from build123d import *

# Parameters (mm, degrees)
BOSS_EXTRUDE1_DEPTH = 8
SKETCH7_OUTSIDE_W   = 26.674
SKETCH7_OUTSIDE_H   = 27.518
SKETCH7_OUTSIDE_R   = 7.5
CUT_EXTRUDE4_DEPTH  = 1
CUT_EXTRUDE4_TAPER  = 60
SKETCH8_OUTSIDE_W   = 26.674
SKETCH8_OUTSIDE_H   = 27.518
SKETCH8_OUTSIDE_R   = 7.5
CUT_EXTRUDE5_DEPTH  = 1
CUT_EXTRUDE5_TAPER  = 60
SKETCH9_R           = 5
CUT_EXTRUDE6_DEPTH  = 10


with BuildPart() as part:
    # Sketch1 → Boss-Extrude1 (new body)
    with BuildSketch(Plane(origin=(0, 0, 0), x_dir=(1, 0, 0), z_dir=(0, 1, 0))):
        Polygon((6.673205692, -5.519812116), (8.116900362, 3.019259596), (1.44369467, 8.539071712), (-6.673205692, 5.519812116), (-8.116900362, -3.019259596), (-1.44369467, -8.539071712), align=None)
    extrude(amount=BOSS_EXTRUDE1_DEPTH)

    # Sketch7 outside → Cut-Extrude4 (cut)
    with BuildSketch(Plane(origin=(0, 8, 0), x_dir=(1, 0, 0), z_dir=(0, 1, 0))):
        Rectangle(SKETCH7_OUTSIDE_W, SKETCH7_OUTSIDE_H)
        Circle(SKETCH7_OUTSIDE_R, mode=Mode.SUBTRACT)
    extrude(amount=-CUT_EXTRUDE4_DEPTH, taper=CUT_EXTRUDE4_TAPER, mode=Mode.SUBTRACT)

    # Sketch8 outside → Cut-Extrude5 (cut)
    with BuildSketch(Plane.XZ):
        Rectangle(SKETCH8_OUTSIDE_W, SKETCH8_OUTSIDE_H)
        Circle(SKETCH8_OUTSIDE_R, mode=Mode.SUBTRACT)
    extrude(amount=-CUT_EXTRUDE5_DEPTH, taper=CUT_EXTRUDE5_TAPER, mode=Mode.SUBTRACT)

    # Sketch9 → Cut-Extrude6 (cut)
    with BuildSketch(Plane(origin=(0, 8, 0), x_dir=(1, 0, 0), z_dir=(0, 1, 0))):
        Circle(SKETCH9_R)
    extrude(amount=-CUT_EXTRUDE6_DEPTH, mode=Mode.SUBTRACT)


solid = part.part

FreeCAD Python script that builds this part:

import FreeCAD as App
import Part
import Sketcher
from FreeCAD import Vector


def add_polygon(sketch, points):
    """Adds a closed chain of lines whose ends are joined by coincident constraints."""
    first, n = sketch.GeometryCount, len(points)
    for a, b in zip(points, points[1:] + points[:1]):
        sketch.addGeometry(Part.LineSegment(App.Vector(*a, 0), App.Vector(*b, 0)), False)
    for i in range(n):
        sketch.addConstraint(Sketcher.Constraint("Coincident", first + i, 2, first + (i + 1) % n, 1))

doc = App.newDocument("Part")
body = doc.addObject("PartDesign::Body", "Body")

# Sketch on XZ plane
sketch1 = body.newObject("Sketcher::SketchObject", "Sketch")
sketch1.AttachmentSupport = (doc.getObject("XZ_Plane"), [""])
sketch1.MapMode = "FlatFace"
add_polygon(sketch1, [(6.673206, 5.519812), (8.1169, -3.01926), (1.443695, -8.539072), (-6.673206, -5.519812), (-8.1169, 3.01926), (-1.443695, 8.539072)])  # lines 0-5
sketch1.addConstraint(Sketcher.Constraint("Symmetric", 0, 2, 3, 2, -1, 1))
sketch1.addConstraint(Sketcher.Constraint("Symmetric", 1, 2, 4, 2, -1, 1))
sketch1.addConstraint(Sketcher.Constraint("Symmetric", 2, 2, 5, 2, -1, 1))
sketch1.addConstraint(Sketcher.Constraint("Equal", 0, 1))
sketch1.addConstraint(Sketcher.Constraint("Equal", 1, 2))
sketch1.addConstraint(Sketcher.Constraint("DistanceX", -1, 1, 0, 2, 8.1169))
sketch1.addConstraint(Sketcher.Constraint("DistanceX", 2, 2, 1, 2, 8.1169))
sketch1.addConstraint(Sketcher.Constraint("DistanceY", 0, 2, -1, 1, 3.01926))
sketch1.addConstraint(Sketcher.Constraint("DistanceY", 1, 2, -1, 1, 8.539072))
pad1 = body.newObject("PartDesign::Pad", "Pad")
pad1.Profile = sketch1
pad1.Length = 8
pad1.Reversed = True

# Sketch on XZ plane
sketch2 = body.newObject("Sketcher::SketchObject", "Sketch001")
sketch2.AttachmentSupport = (doc.getObject("XZ_Plane"), [""])
sketch2.MapMode = "FlatFace"
sketch2.AttachmentOffset = App.Placement(Vector(0, 0, -8), App.Rotation())
add_polygon(sketch2, [(-13.337, -13.759), (-13.337, 13.759), (13.337, 13.759), (13.337, -13.759)])  # lines 0-3
sketch2.addGeometry(Part.Circle(Vector(0, 0, 0), Vector(0, 0, 1), 7.5), False)  # 4
sketch2.addConstraint(Sketcher.Constraint("Vertical", 0))
sketch2.addConstraint(Sketcher.Constraint("Horizontal", 1))
sketch2.addConstraint(Sketcher.Constraint("Vertical", 2))
sketch2.addConstraint(Sketcher.Constraint("Horizontal", 3))
sketch2.addConstraint(Sketcher.Constraint("Coincident", 4, 3, -1, 1))
sketch2.addConstraint(Sketcher.Constraint("Symmetric", 0, 2, 2, 2, -1, 1))
sketch2.addConstraint(Sketcher.Constraint("Diameter", 4, 15.0))
sketch2.addConstraint(Sketcher.Constraint("DistanceX", 1, 1, 1, 2, 26.674))
sketch2.addConstraint(Sketcher.Constraint("DistanceY", 0, 1, 0, 2, 27.518))
pocket1 = body.newObject("PartDesign::Pocket", "Pocket")
pocket1.Profile = sketch2
pocket1.Length = 1
pocket1.Reversed = True
pocket1.TaperAngle = 60

# Sketch on XZ plane
sketch3 = body.newObject("Sketcher::SketchObject", "Sketch002")
sketch3.AttachmentSupport = (doc.getObject("XZ_Plane"), [""])
sketch3.MapMode = "FlatFace"
add_polygon(sketch3, [(-13.337, 13.759), (-13.337, -13.759), (13.337, -13.759), (13.337, 13.759)])  # lines 0-3
sketch3.addGeometry(Part.Circle(Vector(0, 0, 0), Vector(0, 0, 1), 7.5), False)  # 4
sketch3.addConstraint(Sketcher.Constraint("Vertical", 0))
sketch3.addConstraint(Sketcher.Constraint("Horizontal", 1))
sketch3.addConstraint(Sketcher.Constraint("Vertical", 2))
sketch3.addConstraint(Sketcher.Constraint("Horizontal", 3))
sketch3.addConstraint(Sketcher.Constraint("Coincident", 4, 3, -1, 1))
sketch3.addConstraint(Sketcher.Constraint("Symmetric", 0, 2, 2, 2, -1, 1))
sketch3.addConstraint(Sketcher.Constraint("Diameter", 4, 15.0))
sketch3.addConstraint(Sketcher.Constraint("DistanceX", 1, 1, 1, 2, 26.674))
sketch3.addConstraint(Sketcher.Constraint("DistanceY", 0, 2, 0, 1, 27.518))
pocket2 = body.newObject("PartDesign::Pocket", "Pocket001")
pocket2.Profile = sketch3
pocket2.Length = 1
pocket2.TaperAngle = 60

# Sketch on XZ plane
sketch4 = body.newObject("Sketcher::SketchObject", "Sketch003")
sketch4.AttachmentSupport = (doc.getObject("XZ_Plane"), [""])
sketch4.MapMode = "FlatFace"
sketch4.AttachmentOffset = App.Placement(Vector(0, 0, -8), App.Rotation())
sketch4.addGeometry(Part.Circle(Vector(0, 0, 0), Vector(0, 0, 1), 5), False)
sketch4.addConstraint(Sketcher.Constraint("Coincident", 0, 3, -1, 1))
sketch4.addConstraint(Sketcher.Constraint("Diameter", 0, 10.0))
pocket3 = body.newObject("PartDesign::Pocket", "Pocket002")
pocket3.Profile = sketch4
pocket3.Length = 10
pocket3.Reversed = True

doc.recompute()
